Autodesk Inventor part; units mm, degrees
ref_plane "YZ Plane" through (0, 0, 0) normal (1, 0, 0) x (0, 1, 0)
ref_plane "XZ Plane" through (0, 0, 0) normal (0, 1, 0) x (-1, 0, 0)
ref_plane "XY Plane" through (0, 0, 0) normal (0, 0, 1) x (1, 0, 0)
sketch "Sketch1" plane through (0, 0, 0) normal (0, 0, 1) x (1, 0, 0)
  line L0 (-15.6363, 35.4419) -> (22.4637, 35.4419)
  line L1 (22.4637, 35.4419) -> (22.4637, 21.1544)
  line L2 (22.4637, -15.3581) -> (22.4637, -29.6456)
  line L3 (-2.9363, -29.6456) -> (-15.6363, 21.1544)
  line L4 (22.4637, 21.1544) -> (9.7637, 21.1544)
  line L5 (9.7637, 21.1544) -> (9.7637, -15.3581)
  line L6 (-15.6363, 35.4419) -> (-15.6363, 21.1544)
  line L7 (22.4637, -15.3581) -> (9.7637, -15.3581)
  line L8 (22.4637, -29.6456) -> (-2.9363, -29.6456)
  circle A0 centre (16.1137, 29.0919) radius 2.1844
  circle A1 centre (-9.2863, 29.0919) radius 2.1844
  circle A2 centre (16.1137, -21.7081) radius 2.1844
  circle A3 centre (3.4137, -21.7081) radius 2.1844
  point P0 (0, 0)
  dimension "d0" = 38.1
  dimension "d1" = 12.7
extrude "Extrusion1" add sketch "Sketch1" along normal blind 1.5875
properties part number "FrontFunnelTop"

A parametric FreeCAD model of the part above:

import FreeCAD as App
import Part
import Sketcher
Q = App.Units.Quantity

doc = App.newDocument("Part")
params = doc.addObject("Spreadsheet::Sheet", "Params")
for row, (alias, value) in enumerate([
    ("sketch1_width", "1.5 in"),
    ("sketch1_width2", "0.5 in"),
    ("sketch1_diameter", "0.172 in"),
    ("sketch1_height", "0.5625 in"),
    ("pad1_length", "0.0625 in"),
], start=1):
    params.set(f"A{row}", alias)
    params.set(f"B{row}", "=" + value)
    params.setAlias(f"B{row}", alias)

body = doc.addObject("PartDesign::Body", "Body")

# Sketch on XY plane
sketch1 = body.newObject("Sketcher::SketchObject", "Sketch")
sketch1.AttachmentSupport = (doc.getObject("XY_Plane"), [""])
sketch1.MapMode = "FlatFace"
sketch1.addGeometry(Part.LineSegment(App.Vector(22.4637, 35.4419, 0), App.Vector(-15.6363, 35.4419, 0)), False)
sketch1.addGeometry(Part.LineSegment(App.Vector(-15.6363, 35.4419, 0), App.Vector(-15.6363, 21.1544, 0)), False)
sketch1.addGeometry(Part.LineSegment(App.Vector(-15.6363, 21.1544, 0), App.Vector(-2.9363, -29.6456, 0)), False)
sketch1.addGeometry(Part.LineSegment(App.Vector(-2.9363, -29.6456, 0), App.Vector(22.4637, -29.6456, 0)), False)
sketch1.addGeometry(Part.LineSegment(App.Vector(22.4637, -29.6456, 0), App.Vector(22.4637, -15.3581, 0)), False)
sketch1.addGeometry(Part.LineSegment(App.Vector(22.4637, -15.3581, 0), App.Vector(9.7637, -15.3581, 0)), False)
sketch1.addGeometry(Part.LineSegment(App.Vector(9.7637, -15.3581, 0), App.Vector(9.7637, 21.1544, 0)), False)
sketch1.addGeometry(Part.LineSegment(App.Vector(9.7637, 21.1544, 0), App.Vector(22.4637, 21.1544, 0)), False)
sketch1.addGeometry(Part.LineSegment(App.Vector(22.4637, 21.1544, 0), App.Vector(22.4637, 35.4419, 0)), False)
sketch1.addGeometry(Part.Circle(App.Vector(3.4137, -21.7081, 0), App.Vector(0, 0, 1), 2.1844), False)
sketch1.addGeometry(Part.Circle(App.Vector(16.1137, -21.7081, 0), App.Vector(0, 0, 1), 2.1844), False)
sketch1.addGeometry(Part.Circle(App.Vector(-9.2863, 29.0919, 0), App.Vector(0, 0, 1), 2.1844), False)
sketch1.addGeometry(Part.Circle(App.Vector(16.1137, 29.0919, 0), App.Vector(0, 0, 1), 2.1844), False)
sketch1.addConstraint(Sketcher.Constraint("Coincident", 0, 2, 1, 1))
sketch1.addConstraint(Sketcher.Constraint("Coincident", 1, 2, 2, 1))
sketch1.addConstraint(Sketcher.Constraint("Coincident", 2, 2, 3, 1))
sketch1.addConstraint(Sketcher.Constraint("Coincident", 3, 2, 4, 1))
sketch1.addConstraint(Sketcher.Constraint("Coincident", 4, 2, 5, 1))
sketch1.addConstraint(Sketcher.Constraint("Coincident", 5, 2, 6, 1))
sketch1.addConstraint(Sketcher.Constraint("Coincident", 6, 2, 7, 1))
sketch1.addConstraint(Sketcher.Constraint("Coincident", 7, 2, 8, 1))
sketch1.addConstraint(Sketcher.Constraint("Coincident", 8, 2, 0, 1))
sketch1.addConstraint(Sketcher.Constraint("Horizontal", 0))
sketch1.addConstraint(Sketcher.Constraint("Vertical", 1))
sketch1.addConstraint(Sketcher.Constraint("Horizontal", 3))
sketch1.addConstraint(Sketcher.Constraint("Vertical", 4))
sketch1.addConstraint(Sketcher.Constraint("Horizontal", 5))
sketch1.addConstraint(Sketcher.Constraint("Vertical", 6))
sketch1.addConstraint(Sketcher.Constraint("Horizontal", 7))
sketch1.addConstraint(Sketcher.Constraint("Vertical", 8))
sketch1.addConstraint(Sketcher.Constraint("Equal", 9, 10))
sketch1.addConstraint(Sketcher.Constraint("Equal", 10, 11))
sketch1.addConstraint(Sketcher.Constraint("Equal", 11, 12))
sketch1.addConstraint(Sketcher.Constraint("Horizontal", 9, 3, 10, 3))
sketch1.addConstraint(Sketcher.Constraint("Horizontal", 11, 3, 12, 3))
sketch1.addConstraint(Sketcher.Constraint("Horizontal", 1, 2, 6, 2))
sketch1.addConstraint(Sketcher.Constraint("Vertical", 10, 3, 12, 3))
sketch1.addConstraint(Sketcher.Constraint("Vertical", 4, 2, 7, 2))
sketch1.addConstraint(Sketcher.Constraint("Equal", 1, 4))
sketch1.addConstraint(Sketcher.Constraint("DistanceX", 0, 2, 0, 1, Q("1.5 in")))
sketch1.addConstraint(Sketcher.Constraint("DistanceX", 5, 2, 5, 1, Q("0.5 in")))
sketch1.addConstraint(Sketcher.Constraint("DistanceX", 9, 3, 10, 3, Q("0.5 in")))
sketch1.addConstraint(Sketcher.Constraint("DistanceX", 11, 3, 9, 3, Q("0.5 in")))
sketch1.addConstraint(Sketcher.Constraint("DistanceX", 1, 2, 2, 2, Q("0.5 in")))
sketch1.addConstraint(Sketcher.Constraint("Diameter", 9, Q("0.172 in")))
sketch1.addConstraint(Sketcher.Constraint("DistanceY", 9, 3, 11, 3, Q("2 in")))
sketch1.addConstraint(Sketcher.Constraint("DistanceY", 2, 2, 1, 2, Q("2 in")))
sketch1.addConstraint(Sketcher.Constraint("DistanceY", 1, 2, 1, 1, Q("0.5625 in")))
sketch1.addConstraint(Sketcher.Constraint("DistanceX", 0, 2, 11, 3, Q("0.25 in")))
sketch1.addConstraint(Sketcher.Constraint("DistanceY", 11, 3, 0, 2, Q("0.25 in")))
sketch1.addConstraint(Sketcher.Constraint("DistanceX", -1, 1, 9, 3, Q("0.1344 in")))
sketch1.addConstraint(Sketcher.Constraint("DistanceY", 9, 3, -1, 1, 21.708))
sketch1.setExpression("Constraints[26]", "Params.sketch1_width")
sketch1.setExpression("Constraints[27]", "Params.sketch1_width2")
sketch1.setExpression("Constraints[31]", "Params.sketch1_diameter")
sketch1.setExpression("Constraints[34]", "Params.sketch1_height")
pad1 = body.newObject("PartDesign::Pad", "Pad")
pad1.Profile = sketch1
pad1.setExpression("Length", "Params.pad1_length")

doc.recompute()
